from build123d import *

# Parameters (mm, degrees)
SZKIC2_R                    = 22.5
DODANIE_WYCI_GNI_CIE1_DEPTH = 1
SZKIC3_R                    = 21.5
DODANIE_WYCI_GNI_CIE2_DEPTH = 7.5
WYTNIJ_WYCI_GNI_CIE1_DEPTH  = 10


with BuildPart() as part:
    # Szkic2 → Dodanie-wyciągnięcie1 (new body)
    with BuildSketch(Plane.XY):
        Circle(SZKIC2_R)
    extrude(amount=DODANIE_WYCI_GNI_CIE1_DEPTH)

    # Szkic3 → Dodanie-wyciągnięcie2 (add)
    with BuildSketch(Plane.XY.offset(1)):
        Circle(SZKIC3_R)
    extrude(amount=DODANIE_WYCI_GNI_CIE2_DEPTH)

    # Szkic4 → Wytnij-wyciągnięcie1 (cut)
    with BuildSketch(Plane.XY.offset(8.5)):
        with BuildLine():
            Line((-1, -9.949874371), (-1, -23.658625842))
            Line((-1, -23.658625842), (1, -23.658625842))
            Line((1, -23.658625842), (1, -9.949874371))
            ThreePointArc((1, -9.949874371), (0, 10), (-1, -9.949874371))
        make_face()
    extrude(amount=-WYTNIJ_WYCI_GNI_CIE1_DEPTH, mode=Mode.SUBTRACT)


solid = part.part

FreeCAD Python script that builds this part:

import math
import FreeCAD as App
import Part
import Sketcher

V = App.Vector
Q = App.Units.Quantity

doc = App.newDocument("Part")
body = doc.addObject("PartDesign::Body", "Body")

# Sketch on XY plane
sketch1 = body.newObject("Sketcher::SketchObject", "Sketch")
sketch1.AttachmentSupport = (doc.getObject("XY_Plane"), [""])
sketch1.MapMode = "FlatFace"
sketch1.addGeometry(Part.Circle(V(0, 0, 0), V(0, 0, 1), 22), False)
sketch1.addConstraint(Sketcher.Constraint("Coincident", 0, 3, -1, 1))
sketch1.addConstraint(Sketcher.Constraint("Diameter", 0, Q("45 mm")))
pad1 = body.newObject("PartDesign::Pad", "Pad")
pad1.Profile = sketch1
pad1.Length = 1

# Sketch on XY plane
sketch2 = body.newObject("Sketcher::SketchObject", "Sketch001")
sketch2.AttachmentSupport = (doc.getObject("XY_Plane"), [""])
sketch2.MapMode = "FlatFace"
sketch2.AttachmentOffset = App.Placement(V(0, 0, 1), App.Rotation())
sketch2.addGeometry(Part.Circle(V(0, 0, 0), V(0, 0, 1), 22), False)
sketch2.addConstraint(Sketcher.Constraint("Coincident", 0, 3, -1, 1))
sketch2.addConstraint(Sketcher.Constraint("Diameter", 0, Q("43 mm")))
pad2 = body.newObject("PartDesign::Pad", "Pad001")
pad2.Profile = sketch2
pad2.Length = 7.5

# Sketch on XY plane
sketch3 = body.newObject("Sketcher::SketchObject", "Sketch002")
sketch3.AttachmentSupport = (doc.getObject("XY_Plane"), [""])
sketch3.MapMode = "FlatFace"
sketch3.AttachmentOffset = App.Placement(V(0, 0, 8.5), App.Rotation())
sketch3.addGeometry(Part.LineSegment(V(-1, -9.9, 0), V(-1, -23.7, 0)), False)
sketch3.addGeometry(Part.LineSegment(V(-1, -23.7, 0), V(1, -23.7, 0)), False)
sketch3.addGeometry(Part.LineSegment(V(1, -23.7, 0), V(1, -9.9, 0)), False)
sketch3.addGeometry(Part.ArcOfCircle(Part.Circle(V(0, 0, 0), V(0, 0, 1), 10), math.radians(-84), math.radians(264)), False)
sketch3.addConstraint(Sketcher.Constraint("Coincident", 0, 2, 1, 1))
sketch3.addConstraint(Sketcher.Constraint("Coincident", 1, 2, 2, 1))
sketch3.addConstraint(Sketcher.Constraint("Coincident", 2, 2, 3, 1))
sketch3.addConstraint(Sketcher.Constraint("Coincident", 3, 2, 0, 1))
sketch3.addConstraint(Sketcher.Constraint("Vertical", 0))
sketch3.addConstraint(Sketcher.Constraint("Horizontal", 1))
sketch3.addConstraint(Sketcher.Constraint("Vertical", 2))
sketch3.addConstraint(Sketcher.Constraint("Coincident", 3, 3, -1, 1))
sketch3.addConstraint(Sketcher.Constraint("Horizontal", 2, 2, 3, 2))
sketch3.addConstraint(Sketcher.Constraint("Radius", 3, Q("10 mm")))
sketch3.addConstraint(Sketcher.Constraint("DistanceX", 1, 1, 1, 2, Q("2 mm")))
sketch3.addConstraint(Sketcher.Constraint("DistanceY", 0, 2, 0, 1, Q("13.708751 mm")))
pocket1 = body.newObject("PartDesign::Pocket", "Pocket")
pocket1.Profile = sketch3
pocket1.Length = 10

doc.recompute()
